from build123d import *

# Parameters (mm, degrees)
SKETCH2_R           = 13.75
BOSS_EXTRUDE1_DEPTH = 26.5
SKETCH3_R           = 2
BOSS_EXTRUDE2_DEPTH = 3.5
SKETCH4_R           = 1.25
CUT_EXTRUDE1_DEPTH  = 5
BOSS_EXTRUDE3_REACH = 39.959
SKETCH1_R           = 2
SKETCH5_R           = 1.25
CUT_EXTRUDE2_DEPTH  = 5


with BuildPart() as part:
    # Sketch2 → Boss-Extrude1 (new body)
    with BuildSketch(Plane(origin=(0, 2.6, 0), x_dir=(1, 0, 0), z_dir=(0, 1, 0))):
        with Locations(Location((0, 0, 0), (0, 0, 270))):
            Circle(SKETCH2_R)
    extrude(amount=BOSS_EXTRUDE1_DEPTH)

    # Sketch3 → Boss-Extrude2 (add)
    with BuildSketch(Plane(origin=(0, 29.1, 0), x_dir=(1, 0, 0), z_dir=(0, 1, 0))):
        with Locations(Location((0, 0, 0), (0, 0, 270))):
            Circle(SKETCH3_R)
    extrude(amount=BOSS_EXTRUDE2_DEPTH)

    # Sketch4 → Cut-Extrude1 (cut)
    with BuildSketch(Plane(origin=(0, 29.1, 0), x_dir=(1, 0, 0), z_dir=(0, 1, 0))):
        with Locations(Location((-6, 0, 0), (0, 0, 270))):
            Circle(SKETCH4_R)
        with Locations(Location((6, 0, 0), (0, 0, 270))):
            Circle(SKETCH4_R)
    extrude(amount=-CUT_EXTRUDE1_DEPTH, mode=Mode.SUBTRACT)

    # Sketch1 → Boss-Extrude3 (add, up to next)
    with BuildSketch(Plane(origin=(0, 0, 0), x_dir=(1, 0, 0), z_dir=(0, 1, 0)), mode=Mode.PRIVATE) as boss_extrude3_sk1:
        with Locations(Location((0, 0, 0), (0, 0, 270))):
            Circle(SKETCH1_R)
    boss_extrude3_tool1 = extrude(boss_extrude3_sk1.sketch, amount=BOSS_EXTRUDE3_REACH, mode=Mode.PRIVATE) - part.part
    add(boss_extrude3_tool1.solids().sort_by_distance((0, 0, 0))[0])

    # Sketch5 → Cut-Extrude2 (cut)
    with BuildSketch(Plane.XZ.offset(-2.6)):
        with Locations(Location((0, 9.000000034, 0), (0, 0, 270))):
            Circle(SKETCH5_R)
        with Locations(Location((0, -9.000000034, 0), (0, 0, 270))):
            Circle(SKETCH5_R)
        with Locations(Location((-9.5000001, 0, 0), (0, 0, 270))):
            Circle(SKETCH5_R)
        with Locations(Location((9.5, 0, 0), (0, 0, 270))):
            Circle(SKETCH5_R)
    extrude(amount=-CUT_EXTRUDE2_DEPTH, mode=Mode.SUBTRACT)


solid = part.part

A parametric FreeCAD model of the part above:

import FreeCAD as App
import Part
import Sketcher

doc = App.newDocument("Part")
body = doc.addObject("PartDesign::Body", "Body")

# Sketch on XZ plane
sketch1 = body.newObject("Sketcher::SketchObject", "Sketch")
sketch1.AttachmentSupport = (doc.getObject("XZ_Plane"), [""])
sketch1.MapMode = "FlatFace"
sketch1.AttachmentOffset = App.Placement(App.Vector(0, 0, -2.6), App.Rotation())
sketch1.addGeometry(Part.Circle(App.Vector(0, 0, 0), App.Vector(0, 0, 1), 14), False)
sketch1.addConstraint([
    Sketcher.Constraint("Coincident", 0, 3, -1, 1),
    Sketcher.Constraint("Diameter", 0, 27.5),
])
pad1 = body.newObject("PartDesign::Pad", "Pad")
pad1.Profile = sketch1
pad1.Length = 26.5
pad1.Reversed = True

# Sketch on XZ plane
sketch2 = body.newObject("Sketcher::SketchObject", "Sketch001")
sketch2.AttachmentSupport = (doc.getObject("XZ_Plane"), [""])
sketch2.MapMode = "FlatFace"
sketch2.AttachmentOffset = App.Placement(App.Vector(0, 0, -29.1), App.Rotation())
sketch2.addGeometry(Part.Circle(App.Vector(0, 0, 0), App.Vector(0, 0, 1), 2), False)
sketch2.addConstraint([
    Sketcher.Constraint("Coincident", 0, 3, -1, 1),
    Sketcher.Constraint("Diameter", 0, 4.0),
])
pad2 = body.newObject("PartDesign::Pad", "Pad001")
pad2.Profile = sketch2
pad2.Length = 3.5
pad2.Reversed = True

# Sketch on XZ plane
sketch3 = body.newObject("Sketcher::SketchObject", "Sketch002")
sketch3.AttachmentSupport = (doc.getObject("XZ_Plane"), [""])
sketch3.MapMode = "FlatFace"
sketch3.AttachmentOffset = App.Placement(App.Vector(0, 0, -29.1), App.Rotation())
sketch3.addGeometry([
    Part.Circle(App.Vector(-6, 0, 0), App.Vector(0, 0, 1), 1.2),
    Part.Circle(App.Vector(6, 0, 0), App.Vector(0, 0, 1), 1.2),
], False)
sketch3.addConstraint([
    Sketcher.Constraint("Equal", 0, 1),
    Sketcher.Constraint("Symmetric", 0, 3, 1, 3, -1, 1),
    Sketcher.Constraint("PointOnObject", 0, 3, -1),
    Sketcher.Constraint("Diameter", 0, 2.5),
    Sketcher.Constraint("DistanceX", 0, 3, -1, 1, 6.0),
])
pocket1 = body.newObject("PartDesign::Pocket", "Pocket")
pocket1.Profile = sketch3
pocket1.Length = 5
pocket1.Reversed = True

# Sketch on XZ plane
sketch4 = body.newObject("Sketcher::SketchObject", "Sketch003")
sketch4.AttachmentSupport = (doc.getObject("XZ_Plane"), [""])
sketch4.MapMode = "FlatFace"
sketch4.addGeometry(Part.Circle(App.Vector(0, 0, 0), App.Vector(0, 0, 1), 2), False)
sketch4.addConstraint([
    Sketcher.Constraint("Coincident", 0, 3, -1, 1),
    Sketcher.Constraint("Diameter", 0, 4.0),
])
pad3 = body.newObject("PartDesign::Pad", "Pad002")
pad3.Profile = sketch4
pad3.Type = "UpToFirst"
pad3.Reversed = True

# Sketch on XZ plane
sketch5 = body.newObject("Sketcher::SketchObject", "Sketch004")
sketch5.AttachmentSupport = (doc.getObject("XZ_Plane"), [""])
sketch5.MapMode = "FlatFace"
sketch5.AttachmentOffset = App.Placement(App.Vector(0, 0, -2.6), App.Rotation())
sketch5.addGeometry([
    Part.Circle(App.Vector(0, 9, 0), App.Vector(0, 0, 1), 1.2),
    Part.Circle(App.Vector(0, -9, 0), App.Vector(0, 0, 1), 1.2),
    Part.Circle(App.Vector(-9.5, 0, 0), App.Vector(0, 0, 1), 1.2),
    Part.Circle(App.Vector(9.5, 0, 0), App.Vector(0, 0, 1), 1.2),
], False)
sketch5.addConstraint([
    Sketcher.Constraint("Equal", 0, 1),
    Sketcher.Constraint("Equal", 1, 2),
    Sketcher.Constraint("Equal", 2, 3),
    Sketcher.Constraint("Symmetric", 0, 3, 1, 3, -1, 1),
    Sketcher.Constraint("Symmetric", 2, 3, 3, 3, -1, 1),
    Sketcher.Constraint("PointOnObject", 0, 3, -2),
    Sketcher.Constraint("PointOnObject", 2, 3, -1),
    Sketcher.Constraint("Diameter", 0, 2.5),
    Sketcher.Constraint("DistanceY", -1, 1, 0, 3, 9.0),
    Sketcher.Constraint("DistanceX", 2, 3, 3, 3, 19.0),
])
pocket2 = body.newObject("PartDesign::Pocket", "Pocket001")
pocket2.Profile = sketch5
pocket2.Length = 5

doc.recompute()
